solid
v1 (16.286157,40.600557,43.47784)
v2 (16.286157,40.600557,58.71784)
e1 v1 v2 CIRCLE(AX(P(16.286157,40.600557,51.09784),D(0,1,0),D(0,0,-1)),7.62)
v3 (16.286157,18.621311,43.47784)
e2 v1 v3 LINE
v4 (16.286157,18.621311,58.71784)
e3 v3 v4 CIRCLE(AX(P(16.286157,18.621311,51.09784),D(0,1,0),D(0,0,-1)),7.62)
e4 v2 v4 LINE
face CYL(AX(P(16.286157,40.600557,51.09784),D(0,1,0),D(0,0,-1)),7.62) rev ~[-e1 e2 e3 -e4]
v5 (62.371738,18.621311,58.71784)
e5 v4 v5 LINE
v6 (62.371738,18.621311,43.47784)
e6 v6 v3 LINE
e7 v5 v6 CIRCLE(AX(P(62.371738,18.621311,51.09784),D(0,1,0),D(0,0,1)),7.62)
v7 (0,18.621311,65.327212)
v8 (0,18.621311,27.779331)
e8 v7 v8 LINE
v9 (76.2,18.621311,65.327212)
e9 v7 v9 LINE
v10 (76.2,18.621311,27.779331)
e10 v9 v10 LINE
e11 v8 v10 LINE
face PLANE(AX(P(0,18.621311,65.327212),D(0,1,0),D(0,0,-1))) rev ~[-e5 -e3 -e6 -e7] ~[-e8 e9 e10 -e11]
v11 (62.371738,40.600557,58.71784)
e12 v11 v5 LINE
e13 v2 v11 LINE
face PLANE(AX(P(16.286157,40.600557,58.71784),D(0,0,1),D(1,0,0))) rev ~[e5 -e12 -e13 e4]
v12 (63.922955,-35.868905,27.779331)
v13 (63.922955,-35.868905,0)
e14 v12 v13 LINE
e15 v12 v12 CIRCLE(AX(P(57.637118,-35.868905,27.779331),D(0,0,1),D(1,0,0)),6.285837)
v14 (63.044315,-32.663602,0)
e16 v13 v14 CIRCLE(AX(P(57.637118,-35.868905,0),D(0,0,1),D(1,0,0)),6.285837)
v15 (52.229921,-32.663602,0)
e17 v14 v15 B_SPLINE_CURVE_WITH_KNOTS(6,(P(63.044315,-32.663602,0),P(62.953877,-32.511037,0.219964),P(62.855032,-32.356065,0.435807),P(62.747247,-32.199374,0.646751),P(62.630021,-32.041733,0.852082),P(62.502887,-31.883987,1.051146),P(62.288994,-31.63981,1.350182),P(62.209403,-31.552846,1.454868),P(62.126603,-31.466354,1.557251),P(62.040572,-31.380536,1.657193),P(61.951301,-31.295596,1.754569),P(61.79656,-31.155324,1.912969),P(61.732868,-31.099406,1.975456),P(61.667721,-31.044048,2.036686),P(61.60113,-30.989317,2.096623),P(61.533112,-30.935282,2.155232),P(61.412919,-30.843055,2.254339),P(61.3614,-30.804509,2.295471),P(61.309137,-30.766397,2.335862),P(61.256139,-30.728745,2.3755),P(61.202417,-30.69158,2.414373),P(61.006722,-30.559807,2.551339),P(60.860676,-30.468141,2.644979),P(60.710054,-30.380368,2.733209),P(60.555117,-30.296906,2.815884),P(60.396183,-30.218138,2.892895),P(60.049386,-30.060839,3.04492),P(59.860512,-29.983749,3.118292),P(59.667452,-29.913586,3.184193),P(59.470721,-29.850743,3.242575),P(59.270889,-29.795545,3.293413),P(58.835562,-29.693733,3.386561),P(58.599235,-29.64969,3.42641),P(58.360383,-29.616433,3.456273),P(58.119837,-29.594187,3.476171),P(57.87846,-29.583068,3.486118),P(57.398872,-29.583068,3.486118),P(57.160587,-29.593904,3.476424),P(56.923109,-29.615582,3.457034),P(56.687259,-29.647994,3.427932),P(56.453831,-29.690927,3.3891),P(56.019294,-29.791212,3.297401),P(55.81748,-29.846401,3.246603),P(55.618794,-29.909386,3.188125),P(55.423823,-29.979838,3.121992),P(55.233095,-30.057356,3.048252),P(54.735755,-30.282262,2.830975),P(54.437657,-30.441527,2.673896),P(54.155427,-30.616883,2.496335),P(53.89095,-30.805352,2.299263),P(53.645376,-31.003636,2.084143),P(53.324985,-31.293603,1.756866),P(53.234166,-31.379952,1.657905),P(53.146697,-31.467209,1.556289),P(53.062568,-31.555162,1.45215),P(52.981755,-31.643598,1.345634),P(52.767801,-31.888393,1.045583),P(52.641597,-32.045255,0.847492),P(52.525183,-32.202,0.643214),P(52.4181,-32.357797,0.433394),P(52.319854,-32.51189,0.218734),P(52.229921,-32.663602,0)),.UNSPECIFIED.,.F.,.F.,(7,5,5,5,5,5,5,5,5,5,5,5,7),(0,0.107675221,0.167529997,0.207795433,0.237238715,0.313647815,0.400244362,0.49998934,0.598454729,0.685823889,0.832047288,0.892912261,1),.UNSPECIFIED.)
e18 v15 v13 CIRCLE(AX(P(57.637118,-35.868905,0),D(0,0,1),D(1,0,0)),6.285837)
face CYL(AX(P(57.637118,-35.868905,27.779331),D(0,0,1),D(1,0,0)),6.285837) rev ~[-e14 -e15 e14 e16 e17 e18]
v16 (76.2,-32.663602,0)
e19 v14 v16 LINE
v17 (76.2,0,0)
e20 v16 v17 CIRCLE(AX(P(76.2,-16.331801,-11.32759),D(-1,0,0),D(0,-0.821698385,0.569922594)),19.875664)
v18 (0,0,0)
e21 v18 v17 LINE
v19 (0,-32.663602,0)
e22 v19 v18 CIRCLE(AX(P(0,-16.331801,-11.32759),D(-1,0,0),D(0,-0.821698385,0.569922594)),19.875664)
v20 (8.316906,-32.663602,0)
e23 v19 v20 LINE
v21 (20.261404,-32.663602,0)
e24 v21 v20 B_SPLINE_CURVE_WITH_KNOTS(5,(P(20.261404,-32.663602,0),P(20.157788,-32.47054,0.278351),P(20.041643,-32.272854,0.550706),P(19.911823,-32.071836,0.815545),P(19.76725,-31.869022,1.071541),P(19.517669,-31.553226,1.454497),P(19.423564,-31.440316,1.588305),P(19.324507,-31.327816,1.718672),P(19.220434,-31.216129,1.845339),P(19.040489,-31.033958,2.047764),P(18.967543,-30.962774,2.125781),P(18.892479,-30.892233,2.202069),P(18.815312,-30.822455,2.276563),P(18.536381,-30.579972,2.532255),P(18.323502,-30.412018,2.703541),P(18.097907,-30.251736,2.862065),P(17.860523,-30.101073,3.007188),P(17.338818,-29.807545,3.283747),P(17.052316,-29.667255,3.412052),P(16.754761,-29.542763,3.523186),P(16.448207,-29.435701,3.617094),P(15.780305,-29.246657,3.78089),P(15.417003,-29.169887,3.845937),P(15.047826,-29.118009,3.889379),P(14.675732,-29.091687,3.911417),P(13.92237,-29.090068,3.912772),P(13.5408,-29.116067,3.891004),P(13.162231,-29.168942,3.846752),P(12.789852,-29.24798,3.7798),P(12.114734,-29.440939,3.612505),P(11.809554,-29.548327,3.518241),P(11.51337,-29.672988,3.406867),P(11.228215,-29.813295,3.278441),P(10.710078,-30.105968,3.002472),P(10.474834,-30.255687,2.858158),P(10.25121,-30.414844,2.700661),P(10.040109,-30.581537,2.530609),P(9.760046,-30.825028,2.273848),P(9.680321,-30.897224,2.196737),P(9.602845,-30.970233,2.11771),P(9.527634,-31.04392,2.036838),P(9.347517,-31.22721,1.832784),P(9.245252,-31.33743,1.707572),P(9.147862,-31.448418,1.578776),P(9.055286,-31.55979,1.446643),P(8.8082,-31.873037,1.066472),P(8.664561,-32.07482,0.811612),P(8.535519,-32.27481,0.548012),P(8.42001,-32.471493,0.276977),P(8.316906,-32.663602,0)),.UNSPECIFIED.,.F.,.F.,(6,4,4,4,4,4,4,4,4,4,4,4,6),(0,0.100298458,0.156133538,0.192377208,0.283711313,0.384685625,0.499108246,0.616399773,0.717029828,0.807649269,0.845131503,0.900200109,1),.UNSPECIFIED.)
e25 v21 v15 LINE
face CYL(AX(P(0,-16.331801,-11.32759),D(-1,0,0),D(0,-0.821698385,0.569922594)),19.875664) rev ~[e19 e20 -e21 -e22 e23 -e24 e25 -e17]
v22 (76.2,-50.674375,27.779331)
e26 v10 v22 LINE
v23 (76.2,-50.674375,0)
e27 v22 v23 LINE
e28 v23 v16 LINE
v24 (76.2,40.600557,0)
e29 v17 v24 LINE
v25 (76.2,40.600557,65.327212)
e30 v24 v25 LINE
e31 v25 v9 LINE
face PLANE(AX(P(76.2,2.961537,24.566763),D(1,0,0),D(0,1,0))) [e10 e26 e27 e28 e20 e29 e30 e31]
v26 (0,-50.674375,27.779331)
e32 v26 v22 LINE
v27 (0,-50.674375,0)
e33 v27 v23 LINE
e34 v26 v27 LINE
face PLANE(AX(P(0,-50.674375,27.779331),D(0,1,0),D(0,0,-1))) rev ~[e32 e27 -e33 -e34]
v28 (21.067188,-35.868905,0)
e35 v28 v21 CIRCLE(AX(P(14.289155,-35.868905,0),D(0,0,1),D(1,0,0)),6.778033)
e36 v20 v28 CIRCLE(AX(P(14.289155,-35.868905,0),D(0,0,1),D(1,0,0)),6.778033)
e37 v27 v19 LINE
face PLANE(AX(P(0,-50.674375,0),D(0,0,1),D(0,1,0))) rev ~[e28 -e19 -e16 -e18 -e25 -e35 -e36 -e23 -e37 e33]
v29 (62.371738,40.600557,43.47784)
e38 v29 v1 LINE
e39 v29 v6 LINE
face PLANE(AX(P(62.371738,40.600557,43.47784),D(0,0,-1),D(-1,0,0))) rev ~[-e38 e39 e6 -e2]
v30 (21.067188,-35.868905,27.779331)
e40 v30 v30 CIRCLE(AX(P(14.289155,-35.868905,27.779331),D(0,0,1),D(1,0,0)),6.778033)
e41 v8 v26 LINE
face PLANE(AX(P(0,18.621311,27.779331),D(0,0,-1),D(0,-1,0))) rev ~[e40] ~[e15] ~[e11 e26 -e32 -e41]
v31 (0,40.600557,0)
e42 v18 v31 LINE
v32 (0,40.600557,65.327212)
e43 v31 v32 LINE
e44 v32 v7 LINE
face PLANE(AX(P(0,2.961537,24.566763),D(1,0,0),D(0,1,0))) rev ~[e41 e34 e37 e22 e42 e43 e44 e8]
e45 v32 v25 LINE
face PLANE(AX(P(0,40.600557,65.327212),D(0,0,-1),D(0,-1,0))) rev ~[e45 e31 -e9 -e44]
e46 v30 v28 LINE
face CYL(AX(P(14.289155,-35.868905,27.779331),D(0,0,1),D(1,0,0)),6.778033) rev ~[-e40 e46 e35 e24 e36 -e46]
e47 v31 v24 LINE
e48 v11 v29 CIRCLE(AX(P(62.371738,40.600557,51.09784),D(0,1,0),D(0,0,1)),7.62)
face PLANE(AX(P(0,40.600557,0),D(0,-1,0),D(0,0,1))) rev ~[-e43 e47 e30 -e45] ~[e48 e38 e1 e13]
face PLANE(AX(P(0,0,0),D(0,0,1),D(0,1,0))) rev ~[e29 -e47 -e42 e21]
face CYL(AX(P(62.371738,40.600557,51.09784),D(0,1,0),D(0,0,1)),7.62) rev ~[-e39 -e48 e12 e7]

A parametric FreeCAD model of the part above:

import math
import FreeCAD as App
import Part
import Sketcher
Q = App.Units.Quantity

doc = App.newDocument("Part")
body = doc.addObject("PartDesign::Body", "Body")

# Sketch on YZ plane
sketch1 = doc.addObject("Sketcher::SketchObject", "Sketch")
body.addObject(sketch1)
sketch1.AttachmentSupport = (doc.YZ_Plane, [""])
sketch1.MapMode = "FlatFace"
sketch1.addGeometry(Part.ArcOfCircle(Part.Circle(App.Vector(-16, -11, 0), App.Vector(0, 0, 1), 20), math.radians(35), math.radians(145)), False)
sketch1.addGeometry(Part.LineSegment(App.Vector(0, 0, 0), App.Vector(41, 0, 0)), False)
sketch1.addGeometry(Part.LineSegment(App.Vector(41, 0, 0), App.Vector(41, 65, 0)), False)
sketch1.addGeometry(Part.LineSegment(App.Vector(41, 65, 0), App.Vector(19, 65, 0)), False)
sketch1.addGeometry(Part.LineSegment(App.Vector(19, 65, 0), App.Vector(19, 28, 0)), False)
sketch1.addGeometry(Part.LineSegment(App.Vector(19, 28, 0), App.Vector(-51, 28, 0)), False)
sketch1.addGeometry(Part.LineSegment(App.Vector(-51, 28, 0), App.Vector(-51, 0, 0)), False)
sketch1.addGeometry(Part.LineSegment(App.Vector(-51, 0, 0), App.Vector(-33, 0, 0)), False)
sketch1.addConstraint(Sketcher.Constraint("Coincident", 0, 1, 1, 1))
sketch1.addConstraint(Sketcher.Constraint("Coincident", 1, 2, 2, 1))
sketch1.addConstraint(Sketcher.Constraint("Coincident", 2, 2, 3, 1))
sketch1.addConstraint(Sketcher.Constraint("Coincident", 3, 2, 4, 1))
sketch1.addConstraint(Sketcher.Constraint("Coincident", 4, 2, 5, 1))
sketch1.addConstraint(Sketcher.Constraint("Coincident", 5, 2, 6, 1))
sketch1.addConstraint(Sketcher.Constraint("Coincident", 6, 2, 7, 1))
sketch1.addConstraint(Sketcher.Constraint("Coincident", 7, 2, 0, 2))
sketch1.addConstraint(Sketcher.Constraint("Horizontal", 1))
sketch1.addConstraint(Sketcher.Constraint("Vertical", 2))
sketch1.addConstraint(Sketcher.Constraint("Horizontal", 3))
sketch1.addConstraint(Sketcher.Constraint("Vertical", 4))
sketch1.addConstraint(Sketcher.Constraint("Horizontal", 5))
sketch1.addConstraint(Sketcher.Constraint("Vertical", 6))
sketch1.addConstraint(Sketcher.Constraint("Horizontal", 7))
sketch1.addConstraint(Sketcher.Constraint("Coincident", 0, 1, -1, 1))
sketch1.addConstraint(Sketcher.Constraint("PointOnObject", 6, 2, -1))
sketch1.addConstraint(Sketcher.Constraint("Radius", 0, 19.875664))
sketch1.addConstraint(Sketcher.Constraint("DistanceY", 4, 2, 4, 1, 37.547881))
sketch1.addConstraint(Sketcher.Constraint("DistanceY", 6, 2, 6, 1, 27.779331))
sketch1.addConstraint(Sketcher.Constraint("DistanceX", 0, 3, -1, 1, 16.331801))
sketch1.addConstraint(Sketcher.Constraint("DistanceX", 1, 1, 1, 2, 40.600557))
sketch1.addConstraint(Sketcher.Constraint("DistanceX", 3, 2, 3, 1, 21.979246))
sketch1.addConstraint(Sketcher.Constraint("DistanceX", 5, 2, 5, 1, 69.295686))
pad1 = doc.addObject("PartDesign::Pad", "Pad")
body.addObject(pad1)
pad1.Profile = sketch1
pad1.Length = Q("3 in")

# Sketch on XY plane
sketch2 = doc.addObject("Sketcher::SketchObject", "Sketch001")
body.addObject(sketch2)
sketch2.AttachmentSupport = (doc.XY_Plane, [""])
sketch2.MapMode = "FlatFace"
sketch2.AttachmentOffset = App.Placement(App.Vector(0, 0, 27.779331), App.Rotation())
sketch2.addGeometry(Part.Circle(App.Vector(14, -36, 0), App.Vector(0, 0, 1), 7), False)
sketch2.addGeometry(Part.Circle(App.Vector(58, -36, 0), App.Vector(0, 0, 1), 6), False)
sketch2.addConstraint(Sketcher.Constraint("Horizontal", 0, 3, 1, 3))
sketch2.addConstraint(Sketcher.Constraint("Diameter", 0, 13.556066))
sketch2.addConstraint(Sketcher.Constraint("Diameter", 1, 12.571674))
sketch2.addConstraint(Sketcher.Constraint("DistanceX", -1, 1, 0, 3, 14.289155))
sketch2.addConstraint(Sketcher.Constraint("DistanceY", 0, 3, -1, 1, 35.868905))
sketch2.addConstraint(Sketcher.Constraint("DistanceX", -1, 1, 1, 3, 57.637118))
pocket1 = doc.addObject("PartDesign::Pocket", "Pocket")
body.addObject(pocket1)
pocket1.Profile = sketch2
pocket1.Length = Q("2.49 in")

# Sketch on XZ plane
sketch3 = doc.addObject("Sketcher::SketchObject", "Sketch002")
body.addObject(sketch3)
sketch3.AttachmentSupport = (doc.XZ_Plane, [""])
sketch3.MapMode = "FlatFace"
sketch3.AttachmentOffset = App.Placement(App.Vector(0, 0, -40.600557), App.Rotation())
sketch3.addGeometry(Part.LineSegment(App.Vector(16, 59, 0), App.Vector(62, 59, 0)), False)
sketch3.addGeometry(Part.ArcOfCircle(Part.Circle(App.Vector(62, 51, 0), App.Vector(0, 0, 1), 8), math.radians(-90), math.radians(90)), False)
sketch3.addGeometry(Part.LineSegment(App.Vector(62, 43, 0), App.Vector(16, 43, 0)), False)
sketch3.addGeometry(Part.ArcOfCircle(Part.Circle(App.Vector(16, 51, 0), App.Vector(0, 0, 1), 8), math.radians(90), math.radians(270)), False)
sketch3.addConstraint(Sketcher.Constraint("Tangent", 0, 2, 1, 2))
sketch3.addConstraint(Sketcher.Constraint("Tangent", 1, 1, 2, 1))
sketch3.addConstraint(Sketcher.Constraint("Tangent", 2, 2, 3, 2))
sketch3.addConstraint(Sketcher.Constraint("Tangent", 3, 1, 0, 1))
sketch3.addConstraint(Sketcher.Constraint("Horizontal", 0))
sketch3.addConstraint(Sketcher.Constraint("Horizontal", 2))
sketch3.addConstraint(Sketcher.Constraint("Radius", 1, Q("0.3 in")))
sketch3.addConstraint(Sketcher.Constraint("DistanceX", 0, 1, 0, 2, 46.085581))
sketch3.addConstraint(Sketcher.Constraint("DistanceY", -1, 1, 1, 3, 51.09784))
sketch3.addConstraint(Sketcher.Constraint("DistanceX", -1, 1, 1, 3, 62.371738))
pocket2 = doc.addObject("PartDesign::Pocket", "Pocket001")
body.addObject(pocket2)
pocket2.Profile = sketch3
pocket2.Length = Q("1 in")
pocket2.Reversed = True

doc.recompute()
